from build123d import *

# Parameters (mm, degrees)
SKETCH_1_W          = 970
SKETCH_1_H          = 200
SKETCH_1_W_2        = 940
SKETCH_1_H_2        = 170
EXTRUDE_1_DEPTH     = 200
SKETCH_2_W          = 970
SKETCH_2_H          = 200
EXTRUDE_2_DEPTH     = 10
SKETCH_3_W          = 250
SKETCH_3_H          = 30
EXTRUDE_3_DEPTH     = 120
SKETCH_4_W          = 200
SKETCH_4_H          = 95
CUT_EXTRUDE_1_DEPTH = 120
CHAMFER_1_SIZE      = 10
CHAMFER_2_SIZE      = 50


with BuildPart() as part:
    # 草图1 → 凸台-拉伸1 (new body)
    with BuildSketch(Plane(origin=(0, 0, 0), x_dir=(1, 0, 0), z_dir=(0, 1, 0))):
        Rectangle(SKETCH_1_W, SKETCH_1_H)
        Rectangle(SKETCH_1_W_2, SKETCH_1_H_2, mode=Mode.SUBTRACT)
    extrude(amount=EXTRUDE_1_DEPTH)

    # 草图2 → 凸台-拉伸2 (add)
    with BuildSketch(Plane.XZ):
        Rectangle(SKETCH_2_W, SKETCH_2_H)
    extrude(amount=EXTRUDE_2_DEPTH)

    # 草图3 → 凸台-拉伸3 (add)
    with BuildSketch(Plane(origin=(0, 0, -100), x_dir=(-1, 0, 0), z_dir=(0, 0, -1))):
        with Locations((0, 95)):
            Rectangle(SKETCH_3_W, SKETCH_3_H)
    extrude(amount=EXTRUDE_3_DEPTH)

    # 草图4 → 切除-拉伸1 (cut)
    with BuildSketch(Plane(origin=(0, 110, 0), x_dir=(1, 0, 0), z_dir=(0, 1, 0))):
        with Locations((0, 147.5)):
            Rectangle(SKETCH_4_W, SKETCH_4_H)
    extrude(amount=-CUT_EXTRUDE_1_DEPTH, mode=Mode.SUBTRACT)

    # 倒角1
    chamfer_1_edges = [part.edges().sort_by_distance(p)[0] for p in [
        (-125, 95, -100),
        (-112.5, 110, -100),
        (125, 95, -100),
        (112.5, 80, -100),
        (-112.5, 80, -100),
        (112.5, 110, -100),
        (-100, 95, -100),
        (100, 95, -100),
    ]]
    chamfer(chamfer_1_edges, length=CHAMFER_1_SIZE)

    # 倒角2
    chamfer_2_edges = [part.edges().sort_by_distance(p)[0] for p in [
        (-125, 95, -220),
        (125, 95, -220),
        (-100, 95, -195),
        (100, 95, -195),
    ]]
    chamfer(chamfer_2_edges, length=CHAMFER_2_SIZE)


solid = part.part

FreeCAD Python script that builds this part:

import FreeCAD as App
import Part
import Sketcher

V = App.Vector


def edges_at(feature, points):
    """Names of the edges that pass closest to the given points."""
    edges = feature.Shape.Edges
    near = lambda p: min(range(len(edges)), key=lambda i: edges[i].distToShape(Part.Vertex(*p))[0])
    return sorted({f"Edge{near(p) + 1}" for p in points})

doc = App.newDocument("Part")
params = doc.addObject("Spreadsheet::Sheet", "Params")
for row, (alias, value) in enumerate([
    ("sketch1_width", "970 mm"),
    ("sketch1_width2", "940 mm"),
    ("sketch1_height", "200 mm"),
    ("sketch1_height2", "170 mm"),
    ("pad1_length", "200 mm"),
    ("sketch2_width", "970 mm"),
    ("sketch2_height", "200 mm"),
    ("pad2_length", "10 mm"),
    ("sketch3_width", "250 mm"),
    ("sketch3_height", "30 mm"),
    ("pad3_length", "120 mm"),
    ("sketch4_width", "200 mm"),
    ("sketch4_height", "95 mm"),
    ("pocket1_length", "120 mm"),
    ("chamfer_size", "10 mm"),
    ("chamfer2_size", "50 mm"),
], start=1):
    params.set(f"A{row}", alias)
    params.set(f"B{row}", "=" + value)
    params.setAlias(f"B{row}", alias)

body = doc.addObject("PartDesign::Body", "Body")

# Sketch on XZ plane
sketch1 = body.newObject("Sketcher::SketchObject", "Sketch")
sketch1.AttachmentSupport = (doc.getObject("XZ_Plane"), [""])
sketch1.MapMode = "FlatFace"
sketch1.addGeometry(Part.LineSegment(V(-485, -100, 0), V(-485, 100, 0)), False)
sketch1.addGeometry(Part.LineSegment(V(-485, 100, 0), V(485, 100, 0)), False)
sketch1.addGeometry(Part.LineSegment(V(485, 100, 0), V(485, -100, 0)), False)
sketch1.addGeometry(Part.LineSegment(V(485, -100, 0), V(-485, -100, 0)), False)
sketch1.addGeometry(Part.LineSegment(V(470, 85, 0), V(-470, 85, 0)), False)
sketch1.addGeometry(Part.LineSegment(V(-470, 85, 0), V(-470, -85, 0)), False)
sketch1.addGeometry(Part.LineSegment(V(-470, -85, 0), V(470, -85, 0)), False)
sketch1.addGeometry(Part.LineSegment(V(470, -85, 0), V(470, 85, 0)), False)
sketch1.addConstraint(Sketcher.Constraint("Coincident", 0, 2, 1, 1))
sketch1.addConstraint(Sketcher.Constraint("Coincident", 1, 2, 2, 1))
sketch1.addConstraint(Sketcher.Constraint("Coincident", 2, 2, 3, 1))
sketch1.addConstraint(Sketcher.Constraint("Coincident", 3, 2, 0, 1))
sketch1.addConstraint(Sketcher.Constraint("Coincident", 4, 2, 5, 1))
sketch1.addConstraint(Sketcher.Constraint("Coincident", 5, 2, 6, 1))
sketch1.addConstraint(Sketcher.Constraint("Coincident", 6, 2, 7, 1))
sketch1.addConstraint(Sketcher.Constraint("Coincident", 7, 2, 4, 1))
sketch1.addConstraint(Sketcher.Constraint("Vertical", 0))
sketch1.addConstraint(Sketcher.Constraint("Horizontal", 1))
sketch1.addConstraint(Sketcher.Constraint("Vertical", 2))
sketch1.addConstraint(Sketcher.Constraint("Horizontal", 3))
sketch1.addConstraint(Sketcher.Constraint("Horizontal", 4))
sketch1.addConstraint(Sketcher.Constraint("Vertical", 5))
sketch1.addConstraint(Sketcher.Constraint("Horizontal", 6))
sketch1.addConstraint(Sketcher.Constraint("Vertical", 7))
sketch1.addConstraint(Sketcher.Constraint("Symmetric", 0, 2, 2, 2, -1, 1))
sketch1.addConstraint(Sketcher.Constraint("Symmetric", 4, 2, 6, 2, -1, 1))
sketch1.addConstraint(Sketcher.Constraint("DistanceX", 1, 1, 1, 2, 970.0))
sketch1.addConstraint(Sketcher.Constraint("DistanceX", 4, 2, 4, 1, 940.0))
sketch1.addConstraint(Sketcher.Constraint("DistanceY", 0, 1, 0, 2, 200.0))
sketch1.addConstraint(Sketcher.Constraint("DistanceY", 5, 2, 5, 1, 170.0))
sketch1.setExpression("Constraints[18]", "Params.sketch1_width")
sketch1.setExpression("Constraints[19]", "Params.sketch1_width2")
sketch1.setExpression("Constraints[20]", "Params.sketch1_height")
sketch1.setExpression("Constraints[21]", "Params.sketch1_height2")
pad1 = body.newObject("PartDesign::Pad", "Pad")
pad1.Profile = sketch1
pad1.setExpression("Length", "Params.pad1_length")
pad1.Reversed = True

# Sketch on XZ plane
sketch2 = body.newObject("Sketcher::SketchObject", "Sketch001")
sketch2.AttachmentSupport = (doc.getObject("XZ_Plane"), [""])
sketch2.MapMode = "FlatFace"
sketch2.addGeometry(Part.LineSegment(V(-485, 100, 0), V(-485, -100, 0)), False)
sketch2.addGeometry(Part.LineSegment(V(-485, -100, 0), V(485, -100, 0)), False)
sketch2.addGeometry(Part.LineSegment(V(485, -100, 0), V(485, 100, 0)), False)
sketch2.addGeometry(Part.LineSegment(V(485, 100, 0), V(-485, 100, 0)), False)
sketch2.addConstraint(Sketcher.Constraint("Coincident", 0, 2, 1, 1))
sketch2.addConstraint(Sketcher.Constraint("Coincident", 1, 2, 2, 1))
sketch2.addConstraint(Sketcher.Constraint("Coincident", 2, 2, 3, 1))
sketch2.addConstraint(Sketcher.Constraint("Coincident", 3, 2, 0, 1))
sketch2.addConstraint(Sketcher.Constraint("Vertical", 0))
sketch2.addConstraint(Sketcher.Constraint("Horizontal", 1))
sketch2.addConstraint(Sketcher.Constraint("Vertical", 2))
sketch2.addConstraint(Sketcher.Constraint("Horizontal", 3))
sketch2.addConstraint(Sketcher.Constraint("Symmetric", 0, 2, 2, 2, -1, 1))
sketch2.addConstraint(Sketcher.Constraint("DistanceX", 1, 1, 1, 2, 970.0))
sketch2.addConstraint(Sketcher.Constraint("DistanceY", 0, 2, 0, 1, 200.0))
sketch2.setExpression("Constraints[9]", "Params.sketch2_width")
sketch2.setExpression("Constraints[10]", "Params.sketch2_height")
pad2 = body.newObject("PartDesign::Pad", "Pad001")
pad2.Profile = sketch2
pad2.setExpression("Length", "Params.pad2_length")

# Sketch on XY plane
sketch3 = body.newObject("Sketcher::SketchObject", "Sketch002")
sketch3.AttachmentSupport = (doc.getObject("XY_Plane"), [""])
sketch3.MapMode = "FlatFace"
sketch3.AttachmentOffset = App.Placement(V(0, 0, -100), App.Rotation())
sketch3.addGeometry(Part.LineSegment(V(125, 110, 0), V(125, 80, 0)), False)
sketch3.addGeometry(Part.LineSegment(V(125, 80, 0), V(-125, 80, 0)), False)
sketch3.addGeometry(Part.LineSegment(V(-125, 80, 0), V(-125, 110, 0)), False)
sketch3.addGeometry(Part.LineSegment(V(-125, 110, 0), V(125, 110, 0)), False)
sketch3.addConstraint(Sketcher.Constraint("Coincident", 0, 2, 1, 1))
sketch3.addConstraint(Sketcher.Constraint("Coincident", 1, 2, 2, 1))
sketch3.addConstraint(Sketcher.Constraint("Coincident", 2, 2, 3, 1))
sketch3.addConstraint(Sketcher.Constraint("Coincident", 3, 2, 0, 1))
sketch3.addConstraint(Sketcher.Constraint("Vertical", 0))
sketch3.addConstraint(Sketcher.Constraint("Horizontal", 1))
sketch3.addConstraint(Sketcher.Constraint("Vertical", 2))
sketch3.addConstraint(Sketcher.Constraint("Horizontal", 3))
sketch3.addConstraint(Sketcher.Constraint("DistanceX", 1, 2, 1, 1, 250.0))
sketch3.addConstraint(Sketcher.Constraint("DistanceY", 0, 2, 0, 1, 30.0))
sketch3.addConstraint(Sketcher.Constraint("DistanceX", -1, 1, 0, 2, 125.0))
sketch3.addConstraint(Sketcher.Constraint("DistanceY", -1, 1, 0, 2, 80.0))
sketch3.setExpression("Constraints[8]", "Params.sketch3_width")
sketch3.setExpression("Constraints[9]", "Params.sketch3_height")
pad3 = body.newObject("PartDesign::Pad", "Pad002")
pad3.Profile = sketch3
pad3.setExpression("Length", "Params.pad3_length")
pad3.Reversed = True

# Sketch on XZ plane
sketch4 = body.newObject("Sketcher::SketchObject", "Sketch003")
sketch4.AttachmentSupport = (doc.getObject("XZ_Plane"), [""])
sketch4.MapMode = "FlatFace"
sketch4.AttachmentOffset = App.Placement(V(0, 0, -110), App.Rotation())
sketch4.addGeometry(Part.LineSegment(V(-100, -195, 0), V(-100, -100, 0)), False)
sketch4.addGeometry(Part.LineSegment(V(-100, -100, 0), V(100, -100, 0)), False)
sketch4.addGeometry(Part.LineSegment(V(100, -100, 0), V(100, -195, 0)), False)
sketch4.addGeometry(Part.LineSegment(V(100, -195, 0), V(-100, -195, 0)), False)
sketch4.addConstraint(Sketcher.Constraint("Coincident", 0, 2, 1, 1))
sketch4.addConstraint(Sketcher.Constraint("Coincident", 1, 2, 2, 1))
sketch4.addConstraint(Sketcher.Constraint("Coincident", 2, 2, 3, 1))
sketch4.addConstraint(Sketcher.Constraint("Coincident", 3, 2, 0, 1))
sketch4.addConstraint(Sketcher.Constraint("Vertical", 0))
sketch4.addConstraint(Sketcher.Constraint("Horizontal", 1))
sketch4.addConstraint(Sketcher.Constraint("Vertical", 2))
sketch4.addConstraint(Sketcher.Constraint("Horizontal", 3))
sketch4.addConstraint(Sketcher.Constraint("DistanceX", 1, 1, 1, 2, 200.0))
sketch4.addConstraint(Sketcher.Constraint("DistanceY", 0, 1, 0, 2, 95.0))
sketch4.addConstraint(Sketcher.Constraint("DistanceX", 0, 2, -1, 1, 100.0))
sketch4.addConstraint(Sketcher.Constraint("DistanceY", 0, 2, -1, 1, 100.0))
sketch4.setExpression("Constraints[8]", "Params.sketch4_width")
sketch4.setExpression("Constraints[9]", "Params.sketch4_height")
pocket1 = body.newObject("PartDesign::Pocket", "Pocket")
pocket1.Profile = sketch4
pocket1.setExpression("Length", "Params.pocket1_length")
pocket1.Reversed = True
doc.recompute()

chamfer = body.newObject("PartDesign::Chamfer", "Chamfer")
chamfer.Base = (pocket1, edges_at(pocket1, [
    (-125, 95, -100),
    (-112.5, 110, -100),
    (125, 95, -100),
    (112.5, 80, -100),
    (-112.5, 80, -100),
    (112.5, 110, -100),
    (-100, 95, -100),
    (100, 95, -100),
]))
chamfer.setExpression("Size", "Params.chamfer_size")
doc.recompute()

chamfer2 = body.newObject("PartDesign::Chamfer", "Chamfer001")
chamfer2.Base = (chamfer, edges_at(chamfer, [
    (-125, 95, -220),
    (125, 95, -220),
    (-100, 95, -195),
    (100, 95, -195),
]))
chamfer2.setExpression("Size", "Params.chamfer2_size")

doc.recompute()
